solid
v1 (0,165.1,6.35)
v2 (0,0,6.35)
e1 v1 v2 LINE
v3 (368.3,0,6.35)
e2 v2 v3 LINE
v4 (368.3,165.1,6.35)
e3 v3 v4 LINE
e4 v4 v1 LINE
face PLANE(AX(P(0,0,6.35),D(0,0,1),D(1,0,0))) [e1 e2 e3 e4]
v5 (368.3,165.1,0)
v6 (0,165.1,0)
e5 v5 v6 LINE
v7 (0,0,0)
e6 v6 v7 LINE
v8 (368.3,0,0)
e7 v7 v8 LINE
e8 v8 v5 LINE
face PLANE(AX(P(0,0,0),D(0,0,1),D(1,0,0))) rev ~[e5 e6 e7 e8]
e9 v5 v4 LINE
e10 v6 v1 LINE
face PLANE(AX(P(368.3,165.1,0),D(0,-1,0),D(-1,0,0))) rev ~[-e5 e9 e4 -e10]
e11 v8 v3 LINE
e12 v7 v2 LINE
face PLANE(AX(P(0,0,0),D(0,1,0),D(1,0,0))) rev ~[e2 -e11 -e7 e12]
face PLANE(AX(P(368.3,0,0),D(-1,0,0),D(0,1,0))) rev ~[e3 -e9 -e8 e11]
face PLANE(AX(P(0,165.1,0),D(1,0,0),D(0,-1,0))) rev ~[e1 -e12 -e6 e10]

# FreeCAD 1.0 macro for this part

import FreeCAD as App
import Part
import Sketcher
from FreeCAD import Vector
Q = App.Units.Quantity

doc = App.newDocument("Part")
body = doc.addObject("PartDesign::Body", "Body")

# Sketch on XY plane
sketch1 = body.newObject("Sketcher::SketchObject", "Sketch")
sketch1.AttachmentSupport = (doc.getObject("XY_Plane"), [""])
sketch1.MapMode = "FlatFace"
sketch1.addGeometry([
    Part.LineSegment(Vector(0, 165, 0), Vector(0, 0, 0)),
    Part.LineSegment(Vector(0, 0, 0), Vector(368, 0, 0)),
    Part.LineSegment(Vector(368, 0, 0), Vector(368, 165, 0)),
    Part.LineSegment(Vector(368, 165, 0), Vector(0, 165, 0)),
], False)
sketch1.addConstraint([
    Sketcher.Constraint("Coincident", 0, 2, 1, 1),
    Sketcher.Constraint("Coincident", 1, 2, 2, 1),
    Sketcher.Constraint("Coincident", 2, 2, 3, 1),
    Sketcher.Constraint("Coincident", 3, 2, 0, 1),
    Sketcher.Constraint("Vertical", 0),
    Sketcher.Constraint("Horizontal", 1),
    Sketcher.Constraint("Vertical", 2),
    Sketcher.Constraint("Horizontal", 3),
    Sketcher.Constraint("Coincident", 0, 2, -1, 1),
    Sketcher.Constraint("DistanceX", 1, 1, 1, 2, Q("14.5 in")),
    Sketcher.Constraint("DistanceY", 0, 2, 0, 1, Q("6.5 in")),
])
pad1 = body.newObject("PartDesign::Pad", "Pad")
pad1.Profile = sketch1
pad1.Length = Q("0.25 in")

doc.recompute()
